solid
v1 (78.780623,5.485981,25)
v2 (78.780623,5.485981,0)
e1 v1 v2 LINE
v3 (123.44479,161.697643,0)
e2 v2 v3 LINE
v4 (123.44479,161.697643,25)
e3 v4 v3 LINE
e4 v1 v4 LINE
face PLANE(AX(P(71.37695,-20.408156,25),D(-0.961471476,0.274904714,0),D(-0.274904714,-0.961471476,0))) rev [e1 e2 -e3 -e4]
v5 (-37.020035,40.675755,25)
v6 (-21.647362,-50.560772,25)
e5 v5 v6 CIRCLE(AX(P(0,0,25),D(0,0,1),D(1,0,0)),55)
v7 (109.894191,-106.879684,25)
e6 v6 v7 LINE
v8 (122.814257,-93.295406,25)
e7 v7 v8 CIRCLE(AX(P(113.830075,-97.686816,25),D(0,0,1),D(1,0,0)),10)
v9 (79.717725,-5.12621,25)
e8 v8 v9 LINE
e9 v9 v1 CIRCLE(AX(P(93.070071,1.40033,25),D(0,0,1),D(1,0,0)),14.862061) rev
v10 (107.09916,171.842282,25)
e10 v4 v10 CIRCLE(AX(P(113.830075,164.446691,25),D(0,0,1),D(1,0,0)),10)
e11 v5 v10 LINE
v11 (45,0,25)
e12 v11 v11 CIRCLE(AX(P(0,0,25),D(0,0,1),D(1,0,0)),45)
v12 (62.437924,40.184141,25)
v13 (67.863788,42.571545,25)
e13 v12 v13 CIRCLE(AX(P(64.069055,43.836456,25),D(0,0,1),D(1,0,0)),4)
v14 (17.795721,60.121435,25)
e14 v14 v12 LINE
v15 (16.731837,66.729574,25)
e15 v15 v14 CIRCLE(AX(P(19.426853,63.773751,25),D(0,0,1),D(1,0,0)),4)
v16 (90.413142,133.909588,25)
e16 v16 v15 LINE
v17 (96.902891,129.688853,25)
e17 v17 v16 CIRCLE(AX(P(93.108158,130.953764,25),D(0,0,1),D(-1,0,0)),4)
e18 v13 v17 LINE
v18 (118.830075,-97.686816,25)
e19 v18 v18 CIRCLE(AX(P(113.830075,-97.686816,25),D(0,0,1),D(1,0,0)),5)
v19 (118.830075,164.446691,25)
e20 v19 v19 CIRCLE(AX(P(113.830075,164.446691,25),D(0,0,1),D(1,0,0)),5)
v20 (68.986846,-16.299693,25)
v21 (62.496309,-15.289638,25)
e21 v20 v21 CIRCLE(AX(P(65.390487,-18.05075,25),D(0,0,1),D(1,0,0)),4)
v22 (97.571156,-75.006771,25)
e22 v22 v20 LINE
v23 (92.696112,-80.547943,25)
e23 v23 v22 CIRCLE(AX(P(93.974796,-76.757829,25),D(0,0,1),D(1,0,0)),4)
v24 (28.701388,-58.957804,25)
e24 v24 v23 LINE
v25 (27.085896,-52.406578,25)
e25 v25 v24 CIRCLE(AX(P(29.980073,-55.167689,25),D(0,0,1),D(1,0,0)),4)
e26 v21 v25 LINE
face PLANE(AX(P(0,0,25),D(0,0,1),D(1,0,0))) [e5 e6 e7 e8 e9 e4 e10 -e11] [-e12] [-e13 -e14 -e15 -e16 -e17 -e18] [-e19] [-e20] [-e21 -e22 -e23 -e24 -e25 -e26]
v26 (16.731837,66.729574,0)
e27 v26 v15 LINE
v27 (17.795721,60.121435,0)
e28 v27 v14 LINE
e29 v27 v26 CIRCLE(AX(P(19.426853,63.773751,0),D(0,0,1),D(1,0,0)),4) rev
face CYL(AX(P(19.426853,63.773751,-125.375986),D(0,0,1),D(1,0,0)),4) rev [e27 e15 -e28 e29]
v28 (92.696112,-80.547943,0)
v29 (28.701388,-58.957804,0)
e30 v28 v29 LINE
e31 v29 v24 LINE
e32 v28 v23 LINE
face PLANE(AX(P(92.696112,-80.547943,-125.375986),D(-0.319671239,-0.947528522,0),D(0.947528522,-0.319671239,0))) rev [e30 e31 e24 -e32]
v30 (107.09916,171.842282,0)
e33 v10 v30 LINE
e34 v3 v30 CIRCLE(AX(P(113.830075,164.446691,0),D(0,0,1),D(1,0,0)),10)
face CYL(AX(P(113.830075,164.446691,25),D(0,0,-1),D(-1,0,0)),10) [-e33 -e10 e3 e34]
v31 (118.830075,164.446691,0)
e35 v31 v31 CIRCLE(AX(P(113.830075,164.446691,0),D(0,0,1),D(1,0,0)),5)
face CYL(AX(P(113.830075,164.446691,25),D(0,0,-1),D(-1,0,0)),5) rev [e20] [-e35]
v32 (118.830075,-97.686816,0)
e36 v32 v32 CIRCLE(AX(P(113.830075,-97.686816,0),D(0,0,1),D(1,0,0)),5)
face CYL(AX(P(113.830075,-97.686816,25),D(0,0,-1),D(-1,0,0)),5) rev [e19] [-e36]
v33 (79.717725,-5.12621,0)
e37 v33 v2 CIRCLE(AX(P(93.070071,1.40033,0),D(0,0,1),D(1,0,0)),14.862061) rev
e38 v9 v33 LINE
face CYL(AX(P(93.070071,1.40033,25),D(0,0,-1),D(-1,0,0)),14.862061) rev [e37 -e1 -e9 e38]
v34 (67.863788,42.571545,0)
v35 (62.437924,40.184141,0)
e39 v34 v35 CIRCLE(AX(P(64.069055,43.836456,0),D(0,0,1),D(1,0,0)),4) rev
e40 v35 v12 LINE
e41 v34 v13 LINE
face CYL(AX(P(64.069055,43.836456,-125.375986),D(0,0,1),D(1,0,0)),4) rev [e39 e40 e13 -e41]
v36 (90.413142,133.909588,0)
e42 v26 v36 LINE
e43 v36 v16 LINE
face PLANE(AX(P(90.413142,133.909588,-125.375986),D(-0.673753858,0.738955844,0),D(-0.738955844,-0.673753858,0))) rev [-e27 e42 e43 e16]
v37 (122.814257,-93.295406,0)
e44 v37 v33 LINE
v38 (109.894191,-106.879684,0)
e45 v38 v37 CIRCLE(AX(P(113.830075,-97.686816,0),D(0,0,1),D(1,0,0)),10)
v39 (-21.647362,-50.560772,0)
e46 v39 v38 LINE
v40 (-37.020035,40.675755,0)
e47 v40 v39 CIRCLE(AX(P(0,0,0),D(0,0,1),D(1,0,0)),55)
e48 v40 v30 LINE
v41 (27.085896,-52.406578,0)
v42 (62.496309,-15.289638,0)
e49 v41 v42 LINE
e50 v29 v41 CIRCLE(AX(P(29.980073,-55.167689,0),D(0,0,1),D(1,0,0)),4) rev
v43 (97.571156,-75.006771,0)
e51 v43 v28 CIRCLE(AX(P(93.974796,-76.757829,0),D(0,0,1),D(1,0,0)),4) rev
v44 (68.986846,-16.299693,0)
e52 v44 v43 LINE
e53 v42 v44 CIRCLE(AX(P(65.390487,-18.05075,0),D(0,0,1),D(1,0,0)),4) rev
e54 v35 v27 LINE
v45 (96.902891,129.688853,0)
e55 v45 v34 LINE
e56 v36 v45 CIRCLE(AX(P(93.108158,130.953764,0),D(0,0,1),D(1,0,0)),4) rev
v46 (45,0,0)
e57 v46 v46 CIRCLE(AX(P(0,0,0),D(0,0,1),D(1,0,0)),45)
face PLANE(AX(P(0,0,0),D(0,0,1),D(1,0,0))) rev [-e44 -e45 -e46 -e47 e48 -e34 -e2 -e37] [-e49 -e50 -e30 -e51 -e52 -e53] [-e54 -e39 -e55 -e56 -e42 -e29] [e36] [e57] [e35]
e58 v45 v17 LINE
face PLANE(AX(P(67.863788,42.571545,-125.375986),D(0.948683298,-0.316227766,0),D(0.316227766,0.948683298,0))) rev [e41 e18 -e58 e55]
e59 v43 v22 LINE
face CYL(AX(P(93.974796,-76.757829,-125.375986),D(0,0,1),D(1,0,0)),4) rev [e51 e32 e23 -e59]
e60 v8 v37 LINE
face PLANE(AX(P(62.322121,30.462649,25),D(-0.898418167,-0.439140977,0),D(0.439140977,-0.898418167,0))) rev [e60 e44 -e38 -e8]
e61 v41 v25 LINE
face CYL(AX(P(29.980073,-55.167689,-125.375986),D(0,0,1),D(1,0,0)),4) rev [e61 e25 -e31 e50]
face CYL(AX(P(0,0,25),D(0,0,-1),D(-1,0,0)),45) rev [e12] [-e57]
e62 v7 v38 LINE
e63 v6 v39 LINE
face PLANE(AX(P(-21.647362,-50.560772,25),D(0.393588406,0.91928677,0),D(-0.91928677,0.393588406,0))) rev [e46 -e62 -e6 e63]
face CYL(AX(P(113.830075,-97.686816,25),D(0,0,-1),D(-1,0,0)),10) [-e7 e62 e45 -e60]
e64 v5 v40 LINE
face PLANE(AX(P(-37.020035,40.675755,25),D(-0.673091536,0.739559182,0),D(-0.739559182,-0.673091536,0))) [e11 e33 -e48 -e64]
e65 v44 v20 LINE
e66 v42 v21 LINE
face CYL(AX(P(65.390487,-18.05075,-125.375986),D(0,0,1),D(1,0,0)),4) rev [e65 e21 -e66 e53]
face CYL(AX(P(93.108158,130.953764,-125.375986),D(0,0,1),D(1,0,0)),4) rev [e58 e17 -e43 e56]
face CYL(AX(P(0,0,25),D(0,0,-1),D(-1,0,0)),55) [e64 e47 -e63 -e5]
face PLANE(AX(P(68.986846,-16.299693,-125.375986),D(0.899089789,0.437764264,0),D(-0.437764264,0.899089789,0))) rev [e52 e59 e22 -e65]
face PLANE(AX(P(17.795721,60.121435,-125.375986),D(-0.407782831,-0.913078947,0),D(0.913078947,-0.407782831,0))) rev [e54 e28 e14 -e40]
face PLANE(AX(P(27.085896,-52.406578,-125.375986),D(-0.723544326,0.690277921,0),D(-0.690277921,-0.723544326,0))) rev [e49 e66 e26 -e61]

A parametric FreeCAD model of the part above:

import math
import FreeCAD as App
import Part
import Sketcher
from FreeCAD import Vector
Q = App.Units.Quantity

doc = App.newDocument("Part")
body = doc.addObject("PartDesign::Body", "Body")

sketch1 = doc.addObject("Sketcher::SketchObject", "Sketch")
body.addObject(sketch1)
sketch1.AttachmentSupport = (doc.XY_Plane, [""])
sketch1.MapMode = "FlatFace"
sketch1.addGeometry([
    Part.LineSegment(Vector(107, 172, 0), Vector(-37, 41, 0)),
    Part.ArcOfCircle(Part.Circle(Vector(0, 0, 0), Vector(0, 0, 1), 55), math.radians(132), math.radians(247)),
    Part.LineSegment(Vector(-22, -51, 0), Vector(110, -107, 0)),
    Part.ArcOfCircle(Part.Circle(Vector(114, -98, 0), Vector(0, 0, 1), 10), math.radians(-113), math.radians(26)),
    Part.LineSegment(Vector(123, -93, 0), Vector(80, -5, 0)),
    Part.ArcOfCircle(Part.Circle(Vector(93, 1, 0), Vector(0, 0, 1), 15), math.radians(164), math.radians(206)),
    Part.LineSegment(Vector(79, 5, 0), Vector(123, 162, 0)),
    Part.ArcOfCircle(Part.Circle(Vector(114, 164, 0), Vector(0, 0, 1), 10), math.radians(-16), math.radians(132)),
    Part.Circle(Vector(0, 0, 0), Vector(0, 0, 1), 45),
    Part.Circle(Vector(114, -98, 0), Vector(0, 0, 1), 5),
    Part.Circle(Vector(114, 164, 0), Vector(0, 0, 1), 5),
], False)
sketch1.addConstraint([
    Sketcher.Constraint("Tangent", 0, 2, 1, 1),
    Sketcher.Constraint("Tangent", 1, 2, 2, 1),
    Sketcher.Constraint("Tangent", 2, 2, 3, 1),
    Sketcher.Constraint("Tangent", 3, 2, 4, 1),
    Sketcher.Constraint("Tangent", 4, 2, 5, 2),
    Sketcher.Constraint("Tangent", 5, 1, 6, 1),
    Sketcher.Constraint("Tangent", 6, 2, 7, 1),
    Sketcher.Constraint("Tangent", 7, 2, 0, 1),
    Sketcher.Constraint("Coincident", 1, 3, -1, 1),
    Sketcher.Constraint("Coincident", 8, 3, -1, 1),
    Sketcher.Constraint("Coincident", 9, 3, 3, 3),
    Sketcher.Constraint("Coincident", 10, 3, 7, 3),
    Sketcher.Constraint("Equal", 3, 7),
    Sketcher.Constraint("Equal", 9, 10),
    Sketcher.Constraint("Vertical", 3, 3, 7, 3),
    Sketcher.Constraint("Diameter", 8, Q("90 mm")),
    Sketcher.Constraint("Diameter", 9, Q("10 mm")),
    Sketcher.Constraint("Radius", 1, Q("55 mm")),
    Sketcher.Constraint("Radius", 3, Q("10 mm")),
    Sketcher.Constraint("Radius", 5, Q("14.862061 mm")),
    Sketcher.Constraint("DistanceY", 5, 1, 7, 2, Q("166.356302 mm")),
    Sketcher.Constraint("Distance", 2, Q("143.09088 mm")),
    Sketcher.Constraint("Distance", 4, Q("98.138261 mm")),
    Sketcher.Constraint("DistanceX", -1, 1, 5, 3, Q("93.070071 mm")),
    Sketcher.Constraint("DistanceY", -1, 1, 5, 3, Q("1.40033 mm")),
])
pad1 = doc.addObject("PartDesign::Pad", "Pad")
body.addObject(pad1)
pad1.Profile = sketch1
pad1.Length = 25

sketch2 = doc.addObject("Sketcher::SketchObject", "Sketch001")
body.addObject(sketch2)
sketch2.AttachmentSupport = (doc.XY_Plane, [""])
sketch2.MapMode = "FlatFace"
sketch2.AttachmentOffset = App.Placement(Vector(0, 0, 25), App.Rotation())
sketch2.addGeometry([
    Part.LineSegment(Vector(17.8, 60.1, 0), Vector(62.4, 40.2, 0)),
    Part.ArcOfCircle(Part.Circle(Vector(64.1, 43.8, 0), Vector(0, 0, 1), 4), math.radians(-114), math.radians(-18)),
    Part.LineSegment(Vector(67.9, 42.6, 0), Vector(96.9, 129.7, 0)),
    Part.ArcOfCircle(Part.Circle(Vector(93.1, 131, 0), Vector(0, 0, 1), 4), math.radians(-18), math.radians(132)),
    Part.LineSegment(Vector(90.4, 133.9, 0), Vector(16.7, 66.7, 0)),
    Part.ArcOfCircle(Part.Circle(Vector(19.4, 63.8, 0), Vector(0, 0, 1), 4), math.radians(132), math.radians(246)),
    Part.LineSegment(Vector(62.5, -15.3, 0), Vector(27.1, -52.4, 0)),
    Part.ArcOfCircle(Part.Circle(Vector(30, -55.2, 0), Vector(0, 0, 1), 4), math.radians(136), math.radians(251)),
    Part.LineSegment(Vector(28.7, -59, 0), Vector(92.7, -80.5, 0)),
    Part.ArcOfCircle(Part.Circle(Vector(94, -76.8, 0), Vector(0, 0, 1), 4), math.radians(-109), math.radians(26)),
    Part.LineSegment(Vector(97.6, -75, 0), Vector(69, -16.3, 0)),
    Part.ArcOfCircle(Part.Circle(Vector(65.4, -18.1, 0), Vector(0, 0, 1), 4), math.radians(26), math.radians(136)),
], False)
sketch2.addConstraint([
    Sketcher.Constraint("Tangent", 0, 2, 1, 1),
    Sketcher.Constraint("Tangent", 1, 2, 2, 1),
    Sketcher.Constraint("Tangent", 2, 2, 3, 1),
    Sketcher.Constraint("Tangent", 3, 2, 4, 1),
    Sketcher.Constraint("Tangent", 4, 2, 5, 1),
    Sketcher.Constraint("Tangent", 5, 2, 0, 1),
    Sketcher.Constraint("Tangent", 6, 2, 7, 1),
    Sketcher.Constraint("Tangent", 7, 2, 8, 1),
    Sketcher.Constraint("Tangent", 8, 2, 9, 1),
    Sketcher.Constraint("Tangent", 9, 2, 10, 1),
    Sketcher.Constraint("Tangent", 10, 2, 11, 1),
    Sketcher.Constraint("Tangent", 11, 2, 6, 1),
    Sketcher.Constraint("Equal", 1, 3),
    Sketcher.Constraint("Equal", 3, 5),
    Sketcher.Constraint("Equal", 5, 7),
    Sketcher.Constraint("Equal", 7, 9),
    Sketcher.Constraint("Equal", 9, 11),
    Sketcher.Constraint("Radius", 1, Q("4 mm")),
    Sketcher.Constraint("DistanceY", 11, 3, 5, 3, Q("81.824501 mm")),
    Sketcher.Constraint("DistanceX", 11, 3, 1, 2, Q("2.473302 mm")),
    Sketcher.Constraint("DistanceX", 6, 2, 9, 3, Q("66.888901 mm")),
    Sketcher.Constraint("DistanceX", 7, 2, 11, 3, Q("36.689099 mm")),
    Sketcher.Constraint("Distance", 0, Q("48.891942 mm")),
    Sketcher.Constraint("DistanceY", -1, 1, 5, 3, Q("63.773751 mm")),
    Sketcher.Constraint("DistanceY", 7, 3, -1, 1, Q("55.167689 mm")),
    Sketcher.Constraint("DistanceY", 9, 3, -1, 1, Q("76.757829 mm")),
    Sketcher.Constraint("DistanceY", -1, 1, 0, 2, Q("40.184141 mm")),
    Sketcher.Constraint("DistanceX", -1, 1, 1, 2, Q("67.863788 mm")),
    Sketcher.Constraint("DistanceX", -1, 1, 2, 2, Q("96.902891 mm")),
    Sketcher.Constraint("DistanceY", 1, 3, 3, 3, Q("87.117308 mm")),
])
pocket1 = doc.addObject("PartDesign::Pocket", "Pocket")
body.addObject(pocket1)
pocket1.Profile = sketch2
pocket1.Length = 25

doc.recompute()
